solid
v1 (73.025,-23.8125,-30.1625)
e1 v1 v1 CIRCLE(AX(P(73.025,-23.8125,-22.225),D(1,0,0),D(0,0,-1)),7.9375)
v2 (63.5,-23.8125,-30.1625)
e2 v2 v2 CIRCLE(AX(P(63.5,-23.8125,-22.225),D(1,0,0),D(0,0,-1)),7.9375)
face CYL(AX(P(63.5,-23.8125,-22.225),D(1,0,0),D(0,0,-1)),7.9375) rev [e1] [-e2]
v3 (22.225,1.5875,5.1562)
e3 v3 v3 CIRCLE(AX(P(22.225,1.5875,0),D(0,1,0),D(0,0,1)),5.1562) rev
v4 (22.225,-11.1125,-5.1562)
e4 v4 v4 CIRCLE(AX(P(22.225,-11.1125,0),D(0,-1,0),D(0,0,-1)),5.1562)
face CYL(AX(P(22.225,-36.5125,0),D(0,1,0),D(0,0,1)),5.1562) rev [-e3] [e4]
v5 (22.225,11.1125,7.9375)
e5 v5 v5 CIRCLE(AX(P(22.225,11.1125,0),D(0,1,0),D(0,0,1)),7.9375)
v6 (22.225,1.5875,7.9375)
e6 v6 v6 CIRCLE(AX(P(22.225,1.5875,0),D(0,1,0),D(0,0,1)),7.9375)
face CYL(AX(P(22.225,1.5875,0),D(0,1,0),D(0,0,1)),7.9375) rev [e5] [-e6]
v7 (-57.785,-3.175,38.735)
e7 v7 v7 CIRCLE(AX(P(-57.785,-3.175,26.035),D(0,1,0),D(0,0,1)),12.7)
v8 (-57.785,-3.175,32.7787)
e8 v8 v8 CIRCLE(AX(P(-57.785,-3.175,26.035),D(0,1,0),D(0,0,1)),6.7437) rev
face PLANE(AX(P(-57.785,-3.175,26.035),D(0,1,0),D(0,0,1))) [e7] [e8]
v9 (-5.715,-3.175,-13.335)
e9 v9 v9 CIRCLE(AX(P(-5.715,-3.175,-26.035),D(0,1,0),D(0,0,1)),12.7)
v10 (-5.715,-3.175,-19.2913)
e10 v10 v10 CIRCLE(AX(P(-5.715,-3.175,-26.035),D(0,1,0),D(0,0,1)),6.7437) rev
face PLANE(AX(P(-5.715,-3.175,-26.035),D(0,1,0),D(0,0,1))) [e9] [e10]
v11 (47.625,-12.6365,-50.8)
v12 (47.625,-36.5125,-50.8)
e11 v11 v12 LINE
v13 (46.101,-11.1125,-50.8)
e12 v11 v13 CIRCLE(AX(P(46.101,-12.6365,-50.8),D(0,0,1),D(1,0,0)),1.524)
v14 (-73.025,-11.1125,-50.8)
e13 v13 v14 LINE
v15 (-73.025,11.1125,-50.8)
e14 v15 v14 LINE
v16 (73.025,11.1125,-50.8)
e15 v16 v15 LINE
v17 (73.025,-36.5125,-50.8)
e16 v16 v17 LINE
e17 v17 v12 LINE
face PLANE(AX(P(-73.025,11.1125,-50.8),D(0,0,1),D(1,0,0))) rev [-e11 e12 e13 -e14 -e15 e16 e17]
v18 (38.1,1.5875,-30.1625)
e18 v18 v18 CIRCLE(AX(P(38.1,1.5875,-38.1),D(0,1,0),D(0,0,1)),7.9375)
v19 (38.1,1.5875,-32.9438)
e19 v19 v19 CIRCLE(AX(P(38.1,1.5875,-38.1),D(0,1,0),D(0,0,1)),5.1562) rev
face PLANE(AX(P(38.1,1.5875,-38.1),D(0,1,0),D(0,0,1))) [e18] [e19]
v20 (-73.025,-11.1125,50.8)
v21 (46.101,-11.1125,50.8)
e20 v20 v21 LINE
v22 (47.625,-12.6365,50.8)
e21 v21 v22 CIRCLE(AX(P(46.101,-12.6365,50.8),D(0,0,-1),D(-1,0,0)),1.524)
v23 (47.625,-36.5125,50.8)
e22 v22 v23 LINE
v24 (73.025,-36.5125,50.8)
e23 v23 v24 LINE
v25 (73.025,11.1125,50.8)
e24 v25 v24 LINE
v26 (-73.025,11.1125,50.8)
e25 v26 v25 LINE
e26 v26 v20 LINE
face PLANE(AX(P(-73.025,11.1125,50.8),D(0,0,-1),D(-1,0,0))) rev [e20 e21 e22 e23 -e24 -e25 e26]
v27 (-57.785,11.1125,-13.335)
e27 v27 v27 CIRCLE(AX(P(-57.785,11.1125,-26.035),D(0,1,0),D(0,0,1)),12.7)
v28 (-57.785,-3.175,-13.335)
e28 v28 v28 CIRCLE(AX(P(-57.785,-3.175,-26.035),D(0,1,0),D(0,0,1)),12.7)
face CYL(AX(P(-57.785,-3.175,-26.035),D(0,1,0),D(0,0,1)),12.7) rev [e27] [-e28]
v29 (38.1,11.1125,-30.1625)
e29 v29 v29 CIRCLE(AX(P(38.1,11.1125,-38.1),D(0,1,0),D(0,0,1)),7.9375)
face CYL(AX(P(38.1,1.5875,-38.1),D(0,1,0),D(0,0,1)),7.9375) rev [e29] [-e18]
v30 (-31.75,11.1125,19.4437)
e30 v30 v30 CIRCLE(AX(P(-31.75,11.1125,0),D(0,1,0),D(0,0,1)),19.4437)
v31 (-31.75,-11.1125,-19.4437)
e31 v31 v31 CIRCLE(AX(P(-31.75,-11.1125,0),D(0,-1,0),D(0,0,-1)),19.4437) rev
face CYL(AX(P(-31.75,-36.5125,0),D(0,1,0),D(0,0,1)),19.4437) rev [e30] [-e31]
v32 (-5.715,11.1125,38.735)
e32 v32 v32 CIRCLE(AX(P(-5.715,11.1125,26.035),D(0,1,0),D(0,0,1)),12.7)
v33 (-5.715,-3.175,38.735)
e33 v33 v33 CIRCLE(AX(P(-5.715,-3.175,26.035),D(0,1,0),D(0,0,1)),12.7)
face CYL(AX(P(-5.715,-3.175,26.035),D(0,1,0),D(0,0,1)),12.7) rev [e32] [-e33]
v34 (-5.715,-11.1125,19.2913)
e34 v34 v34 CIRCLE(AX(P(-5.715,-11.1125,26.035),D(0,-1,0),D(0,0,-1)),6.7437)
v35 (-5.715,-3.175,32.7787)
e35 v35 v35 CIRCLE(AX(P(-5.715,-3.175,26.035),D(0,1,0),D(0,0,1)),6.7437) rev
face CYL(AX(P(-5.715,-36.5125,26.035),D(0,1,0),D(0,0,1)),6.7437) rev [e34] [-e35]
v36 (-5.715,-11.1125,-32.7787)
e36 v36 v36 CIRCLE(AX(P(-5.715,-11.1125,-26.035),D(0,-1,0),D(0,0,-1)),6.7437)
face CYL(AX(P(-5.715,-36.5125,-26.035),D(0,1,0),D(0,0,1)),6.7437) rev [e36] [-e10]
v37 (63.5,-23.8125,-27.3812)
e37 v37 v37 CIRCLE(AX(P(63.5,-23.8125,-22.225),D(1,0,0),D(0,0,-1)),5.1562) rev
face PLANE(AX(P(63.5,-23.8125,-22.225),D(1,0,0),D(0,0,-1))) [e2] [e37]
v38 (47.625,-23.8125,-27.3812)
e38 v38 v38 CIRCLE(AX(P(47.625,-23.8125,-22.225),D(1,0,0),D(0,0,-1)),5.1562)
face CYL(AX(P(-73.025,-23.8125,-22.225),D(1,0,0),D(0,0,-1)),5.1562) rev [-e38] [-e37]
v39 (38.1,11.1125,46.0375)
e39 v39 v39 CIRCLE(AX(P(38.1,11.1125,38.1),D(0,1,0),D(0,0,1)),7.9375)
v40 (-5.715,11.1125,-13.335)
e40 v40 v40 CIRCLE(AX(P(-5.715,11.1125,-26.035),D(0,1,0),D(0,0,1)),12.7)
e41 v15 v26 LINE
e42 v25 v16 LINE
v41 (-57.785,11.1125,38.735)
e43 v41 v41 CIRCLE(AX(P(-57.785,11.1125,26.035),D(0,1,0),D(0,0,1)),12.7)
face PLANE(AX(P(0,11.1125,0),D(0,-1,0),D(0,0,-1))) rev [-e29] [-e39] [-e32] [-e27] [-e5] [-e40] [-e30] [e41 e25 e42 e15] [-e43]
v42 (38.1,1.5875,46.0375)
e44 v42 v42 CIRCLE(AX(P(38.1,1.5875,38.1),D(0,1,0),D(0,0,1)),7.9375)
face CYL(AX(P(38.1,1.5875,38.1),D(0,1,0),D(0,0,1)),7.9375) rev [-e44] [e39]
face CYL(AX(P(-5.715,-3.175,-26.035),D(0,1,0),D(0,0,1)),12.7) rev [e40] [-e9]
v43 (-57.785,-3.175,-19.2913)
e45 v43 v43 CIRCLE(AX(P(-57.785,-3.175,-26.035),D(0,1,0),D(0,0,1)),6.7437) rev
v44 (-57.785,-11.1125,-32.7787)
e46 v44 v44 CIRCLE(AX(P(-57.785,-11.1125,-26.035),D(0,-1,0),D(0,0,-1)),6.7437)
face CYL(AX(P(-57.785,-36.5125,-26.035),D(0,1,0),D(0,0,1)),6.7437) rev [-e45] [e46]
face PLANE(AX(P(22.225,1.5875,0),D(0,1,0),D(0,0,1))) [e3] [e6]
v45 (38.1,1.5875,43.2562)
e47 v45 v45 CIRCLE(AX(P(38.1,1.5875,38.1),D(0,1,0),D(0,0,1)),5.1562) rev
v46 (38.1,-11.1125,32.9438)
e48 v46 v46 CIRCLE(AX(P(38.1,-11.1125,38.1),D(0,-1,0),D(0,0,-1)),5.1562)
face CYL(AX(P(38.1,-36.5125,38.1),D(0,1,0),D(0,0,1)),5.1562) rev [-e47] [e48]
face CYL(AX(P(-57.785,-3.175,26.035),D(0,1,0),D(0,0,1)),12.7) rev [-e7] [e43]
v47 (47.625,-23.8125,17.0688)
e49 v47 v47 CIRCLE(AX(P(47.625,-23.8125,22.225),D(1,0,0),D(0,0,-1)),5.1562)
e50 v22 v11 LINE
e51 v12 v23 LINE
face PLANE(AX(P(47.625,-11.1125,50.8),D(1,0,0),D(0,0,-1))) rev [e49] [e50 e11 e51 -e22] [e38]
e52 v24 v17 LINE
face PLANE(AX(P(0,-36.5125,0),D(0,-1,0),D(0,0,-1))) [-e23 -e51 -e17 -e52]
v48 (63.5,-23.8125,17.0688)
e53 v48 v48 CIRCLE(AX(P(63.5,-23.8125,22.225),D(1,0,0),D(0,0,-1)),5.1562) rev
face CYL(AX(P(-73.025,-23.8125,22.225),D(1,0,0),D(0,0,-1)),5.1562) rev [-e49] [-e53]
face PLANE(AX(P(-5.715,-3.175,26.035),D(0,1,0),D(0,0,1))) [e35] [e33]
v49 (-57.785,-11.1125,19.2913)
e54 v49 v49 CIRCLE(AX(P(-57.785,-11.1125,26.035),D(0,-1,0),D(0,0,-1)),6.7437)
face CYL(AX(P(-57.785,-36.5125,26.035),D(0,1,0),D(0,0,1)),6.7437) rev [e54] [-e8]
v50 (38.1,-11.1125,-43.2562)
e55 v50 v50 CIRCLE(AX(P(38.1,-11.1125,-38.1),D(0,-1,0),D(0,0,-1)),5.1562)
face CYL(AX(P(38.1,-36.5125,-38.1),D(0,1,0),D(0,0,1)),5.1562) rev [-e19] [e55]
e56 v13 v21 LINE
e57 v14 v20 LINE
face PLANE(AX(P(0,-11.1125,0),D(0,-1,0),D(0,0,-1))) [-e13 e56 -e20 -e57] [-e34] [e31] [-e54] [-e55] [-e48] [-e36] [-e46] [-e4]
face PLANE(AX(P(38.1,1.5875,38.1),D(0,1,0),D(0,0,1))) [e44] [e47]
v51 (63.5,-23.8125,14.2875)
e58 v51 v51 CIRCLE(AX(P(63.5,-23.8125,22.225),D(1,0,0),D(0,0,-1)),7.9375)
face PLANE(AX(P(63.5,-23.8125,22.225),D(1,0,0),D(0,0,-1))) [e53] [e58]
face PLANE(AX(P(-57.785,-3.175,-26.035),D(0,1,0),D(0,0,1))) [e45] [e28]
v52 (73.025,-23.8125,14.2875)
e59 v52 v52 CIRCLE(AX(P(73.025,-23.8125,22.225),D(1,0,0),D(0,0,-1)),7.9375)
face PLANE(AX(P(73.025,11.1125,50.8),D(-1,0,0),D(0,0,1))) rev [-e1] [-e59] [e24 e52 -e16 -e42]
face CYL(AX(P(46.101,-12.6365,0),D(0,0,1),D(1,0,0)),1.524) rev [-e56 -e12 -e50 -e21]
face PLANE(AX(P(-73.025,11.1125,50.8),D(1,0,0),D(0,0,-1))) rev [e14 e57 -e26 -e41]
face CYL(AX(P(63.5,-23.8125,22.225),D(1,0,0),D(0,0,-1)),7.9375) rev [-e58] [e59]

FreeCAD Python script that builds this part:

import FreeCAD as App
import Part
import Sketcher
Q = App.Units.Quantity


def edges_at(feature, points):
    """Names of the edges that pass closest to the given points."""
    edges = feature.Shape.Edges
    near = lambda p: min(range(len(edges)), key=lambda i: edges[i].distToShape(Part.Vertex(*p))[0])
    return sorted({f"Edge{near(p) + 1}" for p in points})


def add_polygon(sketch, points):
    """Adds a closed chain of lines whose ends are joined by coincident constraints."""
    first, n = sketch.GeometryCount, len(points)
    for a, b in zip(points, points[1:] + points[:1]):
        sketch.addGeometry(Part.LineSegment(App.Vector(*a, 0), App.Vector(*b, 0)), False)
    for i in range(n):
        sketch.addConstraint(Sketcher.Constraint("Coincident", first + i, 2, first + (i + 1) % n, 1))

doc = App.newDocument("Part")
body = doc.addObject("PartDesign::Body", "Body")

# Sketch on XZ plane
sketch1 = body.newObject("Sketcher::SketchObject", "Sketch")
sketch1.AttachmentSupport = (doc.getObject("XZ_Plane"), [""])
sketch1.MapMode = "FlatFace"
add_polygon(sketch1, [(-73.025, -50.8), (-73.025, 50.8), (73.025, 50.8), (73.025, -50.8)])  # lines 0-3
sketch1.addConstraint([
    Sketcher.Constraint("Vertical", 0),
    Sketcher.Constraint("Horizontal", 1),
    Sketcher.Constraint("Vertical", 2),
    Sketcher.Constraint("Horizontal", 3),
    Sketcher.Constraint("Symmetric", 0, 2, 2, 2, -1, 1),
    Sketcher.Constraint("DistanceY", 0, 1, 0, 2, Q("4 in")),
    Sketcher.Constraint("DistanceX", 1, 1, 1, 2, Q("5.75 in")),
])
pad1 = body.newObject("PartDesign::Pad", "Pad")
pad1.Profile = sketch1
pad1.Length = Q("0.875 in")
pad1.Midplane = True

# Sketch on XZ plane
sketch2 = body.newObject("Sketcher::SketchObject", "Sketch001")
sketch2.AttachmentSupport = (doc.getObject("XZ_Plane"), [""])
sketch2.MapMode = "FlatFace"
sketch2.AttachmentOffset = App.Placement(App.Vector(0, 0, 1.4375 * 25.4), App.Rotation())
add_polygon(sketch2, [(47.625, -50.8), (47.625, 50.8), (73.025, 50.8), (73.025, -50.8)])  # lines 0-3
sketch2.addConstraint([
    Sketcher.Constraint("Vertical", 0),
    Sketcher.Constraint("Horizontal", 1),
    Sketcher.Constraint("Vertical", 2),
    Sketcher.Constraint("Horizontal", 3),
    Sketcher.Constraint("DistanceX", 1, 1, 1, 2, Q("1 in")),
    Sketcher.Constraint("DistanceY", 0, 1, 0, 2, Q("4 in")),
    Sketcher.Constraint("DistanceY", -1, 1, 0, 2, Q("2 in")),
    Sketcher.Constraint("DistanceX", -1, 1, 0, 2, Q("1.875 in")),
])
pad2 = body.newObject("PartDesign::Pad", "Pad001")
pad2.Profile = sketch2
pad2.Length = Q("1 in")
pad2.Reversed = True
doc.recompute()

fillet = body.newObject("PartDesign::Fillet", "Fillet")
fillet.Base = (pad2, edges_at(pad2, [(47.625, -11.113, 0)]))
fillet.Radius = Q("0.06 in")

# Sketch on XZ plane
sketch3 = body.newObject("Sketcher::SketchObject", "Sketch002")
sketch3.AttachmentSupport = (doc.getObject("XZ_Plane"), [""])
sketch3.MapMode = "FlatFace"
sketch3.AttachmentOffset = App.Placement(App.Vector(0, 0, -0.4375 * 25.4), App.Rotation())
sketch3.addGeometry(Part.Circle(App.Vector(-31.75, 0, 0), App.Vector(0, 0, 1), 19.4437), False)
sketch3.addConstraint([
    Sketcher.Constraint("PointOnObject", 0, 3, -1),
    Sketcher.Constraint("Diameter", 0, Q("1.531 in")),
    Sketcher.Constraint("DistanceX", 0, 3, -1, 1, Q("1.25 in")),
])
pocket1 = body.newObject("PartDesign::Pocket", "Pocket")
pocket1.Profile = sketch3
pocket1.Length = Q("1.4375 in")
pocket1.Reversed = True

# Sketch on XZ plane
sketch4 = body.newObject("Sketcher::SketchObject", "Sketch003")
sketch4.AttachmentSupport = (doc.getObject("XZ_Plane"), [""])
sketch4.MapMode = "FlatFace"
sketch4.AttachmentOffset = App.Placement(App.Vector(0, 0, -0.4375 * 25.4), App.Rotation())
sketch4.addGeometry([
    Part.Circle(App.Vector(-57.785, 26.035, 0), App.Vector(0, 0, 1), 6.7437),
    Part.Circle(App.Vector(-5.715, 26.035, 0), App.Vector(0, 0, 1), 6.7437),
    Part.Circle(App.Vector(-57.785, -26.035, 0), App.Vector(0, 0, 1), 6.7437),
    Part.Circle(App.Vector(-5.715, -26.035, 0), App.Vector(0, 0, 1), 6.7437),
], False)
sketch4.addConstraint([
    Sketcher.Constraint("Equal", 0, 1),
    Sketcher.Constraint("Equal", 1, 2),
    Sketcher.Constraint("Equal", 2, 3),
    Sketcher.Constraint("Symmetric", 0, 3, 2, 3, -1),
    Sketcher.Constraint("Symmetric", 1, 3, 3, 3, -1),
    Sketcher.Constraint("Horizontal", 0, 3, 1, 3),
    Sketcher.Constraint("Diameter", 0, Q("0.531 in")),
    Sketcher.Constraint("DistanceX", 0, 3, 1, 3, Q("2.05 in")),
    Sketcher.Constraint("DistanceY", 2, 3, 0, 3, Q("2.05 in")),
    Sketcher.Constraint("DistanceX", 0, 3, -1, 1, Q("2.275 in")),
])
pocket2 = body.newObject("PartDesign::Pocket", "Pocket001")
pocket2.Profile = sketch4
pocket2.Type = "ThroughAll"
pocket2.Reversed = True

# Sketch on XZ plane
sketch5 = body.newObject("Sketcher::SketchObject", "Sketch004")
sketch5.AttachmentSupport = (doc.getObject("XZ_Plane"), [""])
sketch5.MapMode = "FlatFace"
sketch5.AttachmentOffset = App.Placement(App.Vector(0, 0, -0.4375 * 25.4), App.Rotation())
sketch5.addGeometry([
    Part.Circle(App.Vector(-57.785, 26.035, 0), App.Vector(0, 0, 1), 12.7),
    Part.Circle(App.Vector(-5.715, 26.035, 0), App.Vector(0, 0, 1), 12.7),
    Part.Circle(App.Vector(-57.785, -26.035, 0), App.Vector(0, 0, 1), 12.7),
    Part.Circle(App.Vector(-5.715, -26.035, 0), App.Vector(0, 0, 1), 12.7),
], False)
sketch5.addConstraint([
    Sketcher.Constraint("Equal", 0, 1),
    Sketcher.Constraint("Equal", 1, 2),
    Sketcher.Constraint("Equal", 2, 3),
    Sketcher.Constraint("Symmetric", 0, 3, 2, 3, -1),
    Sketcher.Constraint("Symmetric", 1, 3, 3, 3, -1),
    Sketcher.Constraint("Horizontal", 0, 3, 1, 3),
    Sketcher.Constraint("Diameter", 0, Q("1 in")),
    Sketcher.Constraint("DistanceX", 0, 3, 1, 3, Q("2.05 in")),
    Sketcher.Constraint("DistanceY", 2, 3, 0, 3, Q("2.05 in")),
    Sketcher.Constraint("DistanceX", 0, 3, -1, 1, Q("2.275 in")),
])
pocket3 = body.newObject("PartDesign::Pocket", "Pocket002")
pocket3.Profile = sketch5
pocket3.Length = Q("0.5625 in")
pocket3.Reversed = True

# Sketch on XZ plane
sketch6 = body.newObject("Sketcher::SketchObject", "Sketch005")
sketch6.AttachmentSupport = (doc.getObject("XZ_Plane"), [""])
sketch6.MapMode = "FlatFace"
sketch6.AttachmentOffset = App.Placement(App.Vector(0, 0, -0.4375 * 25.4), App.Rotation())
sketch6.addGeometry([
    Part.Circle(App.Vector(38.1, 38.1, 0), App.Vector(0, 0, 1), 5.1562),
    Part.Circle(App.Vector(38.1, -38.1, 0), App.Vector(0, 0, 1), 5.1562),
], False)
sketch6.addConstraint([
    Sketcher.Constraint("Equal", 0, 1),
    Sketcher.Constraint("Symmetric", 0, 3, 1, 3, -1),
    Sketcher.Constraint("Diameter", 0, Q("0.406 in")),
    Sketcher.Constraint("DistanceY", 1, 3, 0, 3, Q("3 in")),
    Sketcher.Constraint("DistanceX", -1, 1, 0, 3, Q("1.5 in")),
])
pocket4 = body.newObject("PartDesign::Pocket", "Pocket003")
pocket4.Profile = sketch6
pocket4.Type = "ThroughAll"
pocket4.Reversed = True

# Sketch on XZ plane
sketch7 = body.newObject("Sketcher::SketchObject", "Sketch006")
sketch7.AttachmentSupport = (doc.getObject("XZ_Plane"), [""])
sketch7.MapMode = "FlatFace"
sketch7.AttachmentOffset = App.Placement(App.Vector(0, 0, -0.4375 * 25.4), App.Rotation())
sketch7.addGeometry([
    Part.Circle(App.Vector(38.1, 38.1, 0), App.Vector(0, 0, 1), 7.9375),
    Part.Circle(App.Vector(38.1, -38.1, 0), App.Vector(0, 0, 1), 7.9375),
], False)
sketch7.addConstraint([
    Sketcher.Constraint("Equal", 0, 1),
    Sketcher.Constraint("Symmetric", 0, 3, 1, 3, -1),
    Sketcher.Constraint("Diameter", 0, Q("0.625 in")),
    Sketcher.Constraint("DistanceY", 1, 3, 0, 3, Q("3 in")),
    Sketcher.Constraint("DistanceX", -1, 1, 0, 3, Q("1.5 in")),
])
pocket5 = body.newObject("PartDesign::Pocket", "Pocket004")
pocket5.Profile = sketch7
pocket5.Length = Q("0.375 in")
pocket5.Reversed = True

# Sketch on XZ plane
sketch8 = body.newObject("Sketcher::SketchObject", "Sketch007")
sketch8.AttachmentSupport = (doc.getObject("XZ_Plane"), [""])
sketch8.MapMode = "FlatFace"
sketch8.AttachmentOffset = App.Placement(App.Vector(0, 0, -0.4375 * 25.4), App.Rotation())
sketch8.addGeometry(Part.Circle(App.Vector(22.225, 0, 0), App.Vector(0, 0, 1), 5.1562), False)
sketch8.addConstraint([
    Sketcher.Constraint("PointOnObject", 0, 3, -1),
    Sketcher.Constraint("Diameter", 0, Q("0.406 in")),
    Sketcher.Constraint("DistanceX", -1, 1, 0, 3, Q("0.875 in")),
])
pocket6 = body.newObject("PartDesign::Pocket", "Pocket005")
pocket6.Profile = sketch8
pocket6.Type = "ThroughAll"
pocket6.Reversed = True

# Sketch on XZ plane
sketch9 = body.newObject("Sketcher::SketchObject", "Sketch008")
sketch9.AttachmentSupport = (doc.getObject("XZ_Plane"), [""])
sketch9.MapMode = "FlatFace"
sketch9.AttachmentOffset = App.Placement(App.Vector(0, 0, -0.4375 * 25.4), App.Rotation())
sketch9.addGeometry(Part.Circle(App.Vector(22.225, 0, 0), App.Vector(0, 0, 1), 7.9375), False)
sketch9.addConstraint([
    Sketcher.Constraint("PointOnObject", 0, 3, -1),
    Sketcher.Constraint("Diameter", 0, Q("0.625 in")),
    Sketcher.Constraint("DistanceX", -1, 1, 0, 3, Q("0.875 in")),
])
pocket7 = body.newObject("PartDesign::Pocket", "Pocket006")
pocket7.Profile = sketch9
pocket7.Length = Q("0.375 in")
pocket7.Reversed = True

# Sketch on YZ plane
sketch10 = body.newObject("Sketcher::SketchObject", "Sketch009")
sketch10.AttachmentSupport = (doc.getObject("YZ_Plane"), [""])
sketch10.MapMode = "FlatFace"
sketch10.AttachmentOffset = App.Placement(App.Vector(0, 0, 2.875 * 25.4), App.Rotation())
sketch10.addGeometry([
    Part.Circle(App.Vector(-23.8125, 22.225, 0), App.Vector(0, 0, 1), 5.1562),
    Part.Circle(App.Vector(-23.8125, -22.225, 0), App.Vector(0, 0, 1), 5.1562),
], False)
sketch10.addConstraint([
    Sketcher.Constraint("Equal", 0, 1),
    Sketcher.Constraint("Symmetric", 0, 3, 1, 3, -1),
    Sketcher.Constraint("Diameter", 0, Q("0.406 in")),
    Sketcher.Constraint("DistanceY", 1, 3, 0, 3, Q("1.75 in")),
    Sketcher.Constraint("DistanceX", 0, 3, -1, 1, Q("0.9375 in")),
])
pocket8 = body.newObject("PartDesign::Pocket", "Pocket007")
pocket8.Profile = sketch10
pocket8.Type = "ThroughAll"

# Sketch on YZ plane
sketch11 = body.newObject("Sketcher::SketchObject", "Sketch010")
sketch11.AttachmentSupport = (doc.getObject("YZ_Plane"), [""])
sketch11.MapMode = "FlatFace"
sketch11.AttachmentOffset = App.Placement(App.Vector(0, 0, 2.875 * 25.4), App.Rotation())
sketch11.addGeometry([
    Part.Circle(App.Vector(-23.8125, 22.225, 0), App.Vector(0, 0, 1), 7.9375),
    Part.Circle(App.Vector(-23.8125, -22.225, 0), App.Vector(0, 0, 1), 7.9375),
], False)
sketch11.addConstraint([
    Sketcher.Constraint("Equal", 0, 1),
    Sketcher.Constraint("Symmetric", 0, 3, 1, 3, -1),
    Sketcher.Constraint("Diameter", 0, Q("0.625 in")),
    Sketcher.Constraint("DistanceY", 1, 3, 0, 3, Q("1.75 in")),
    Sketcher.Constraint("DistanceX", 0, 3, -1, 1, Q("0.9375 in")),
])
pocket9 = body.newObject("PartDesign::Pocket", "Pocket008")
pocket9.Profile = sketch11
pocket9.Length = Q("0.375 in")

doc.recompute()
